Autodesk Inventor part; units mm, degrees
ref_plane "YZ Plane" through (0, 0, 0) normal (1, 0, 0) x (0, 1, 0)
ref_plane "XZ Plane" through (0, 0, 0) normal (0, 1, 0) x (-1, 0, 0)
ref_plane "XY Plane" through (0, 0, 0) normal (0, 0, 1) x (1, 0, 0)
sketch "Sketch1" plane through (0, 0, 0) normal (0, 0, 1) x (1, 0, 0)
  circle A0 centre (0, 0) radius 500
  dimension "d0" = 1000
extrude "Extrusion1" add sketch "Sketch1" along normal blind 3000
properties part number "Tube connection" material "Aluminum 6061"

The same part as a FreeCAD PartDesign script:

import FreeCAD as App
import Part
import Sketcher

doc = App.newDocument("Part")
params = doc.addObject("Spreadsheet::Sheet", "Params")
for row, (alias, value) in enumerate([
    ("sketch1_diameter", "1000 mm"),
    ("pad1_length", "3000 mm"),
], start=1):
    params.set(f"A{row}", alias)
    params.set(f"B{row}", "=" + value)
    params.setAlias(f"B{row}", alias)

body = doc.addObject("PartDesign::Body", "Body")

sketch1 = body.newObject("Sketcher::SketchObject", "Sketch")
sketch1.AttachmentSupport = (doc.getObject("XY_Plane"), [""])
sketch1.MapMode = "FlatFace"
sketch1.addGeometry(Part.Circle(App.Vector(0, 0, 0), App.Vector(0, 0, 1), 500), False)
sketch1.addConstraint(Sketcher.Constraint("Coincident", 0, 3, -1, 1))
sketch1.addConstraint(Sketcher.Constraint("Diameter", 0, 1000.0))
sketch1.setExpression("Constraints[1]", "Params.sketch1_diameter")
pad1 = body.newObject("PartDesign::Pad", "Pad")
pad1.Profile = sketch1
pad1.setExpression("Length", "Params.pad1_length")

doc.recompute()
